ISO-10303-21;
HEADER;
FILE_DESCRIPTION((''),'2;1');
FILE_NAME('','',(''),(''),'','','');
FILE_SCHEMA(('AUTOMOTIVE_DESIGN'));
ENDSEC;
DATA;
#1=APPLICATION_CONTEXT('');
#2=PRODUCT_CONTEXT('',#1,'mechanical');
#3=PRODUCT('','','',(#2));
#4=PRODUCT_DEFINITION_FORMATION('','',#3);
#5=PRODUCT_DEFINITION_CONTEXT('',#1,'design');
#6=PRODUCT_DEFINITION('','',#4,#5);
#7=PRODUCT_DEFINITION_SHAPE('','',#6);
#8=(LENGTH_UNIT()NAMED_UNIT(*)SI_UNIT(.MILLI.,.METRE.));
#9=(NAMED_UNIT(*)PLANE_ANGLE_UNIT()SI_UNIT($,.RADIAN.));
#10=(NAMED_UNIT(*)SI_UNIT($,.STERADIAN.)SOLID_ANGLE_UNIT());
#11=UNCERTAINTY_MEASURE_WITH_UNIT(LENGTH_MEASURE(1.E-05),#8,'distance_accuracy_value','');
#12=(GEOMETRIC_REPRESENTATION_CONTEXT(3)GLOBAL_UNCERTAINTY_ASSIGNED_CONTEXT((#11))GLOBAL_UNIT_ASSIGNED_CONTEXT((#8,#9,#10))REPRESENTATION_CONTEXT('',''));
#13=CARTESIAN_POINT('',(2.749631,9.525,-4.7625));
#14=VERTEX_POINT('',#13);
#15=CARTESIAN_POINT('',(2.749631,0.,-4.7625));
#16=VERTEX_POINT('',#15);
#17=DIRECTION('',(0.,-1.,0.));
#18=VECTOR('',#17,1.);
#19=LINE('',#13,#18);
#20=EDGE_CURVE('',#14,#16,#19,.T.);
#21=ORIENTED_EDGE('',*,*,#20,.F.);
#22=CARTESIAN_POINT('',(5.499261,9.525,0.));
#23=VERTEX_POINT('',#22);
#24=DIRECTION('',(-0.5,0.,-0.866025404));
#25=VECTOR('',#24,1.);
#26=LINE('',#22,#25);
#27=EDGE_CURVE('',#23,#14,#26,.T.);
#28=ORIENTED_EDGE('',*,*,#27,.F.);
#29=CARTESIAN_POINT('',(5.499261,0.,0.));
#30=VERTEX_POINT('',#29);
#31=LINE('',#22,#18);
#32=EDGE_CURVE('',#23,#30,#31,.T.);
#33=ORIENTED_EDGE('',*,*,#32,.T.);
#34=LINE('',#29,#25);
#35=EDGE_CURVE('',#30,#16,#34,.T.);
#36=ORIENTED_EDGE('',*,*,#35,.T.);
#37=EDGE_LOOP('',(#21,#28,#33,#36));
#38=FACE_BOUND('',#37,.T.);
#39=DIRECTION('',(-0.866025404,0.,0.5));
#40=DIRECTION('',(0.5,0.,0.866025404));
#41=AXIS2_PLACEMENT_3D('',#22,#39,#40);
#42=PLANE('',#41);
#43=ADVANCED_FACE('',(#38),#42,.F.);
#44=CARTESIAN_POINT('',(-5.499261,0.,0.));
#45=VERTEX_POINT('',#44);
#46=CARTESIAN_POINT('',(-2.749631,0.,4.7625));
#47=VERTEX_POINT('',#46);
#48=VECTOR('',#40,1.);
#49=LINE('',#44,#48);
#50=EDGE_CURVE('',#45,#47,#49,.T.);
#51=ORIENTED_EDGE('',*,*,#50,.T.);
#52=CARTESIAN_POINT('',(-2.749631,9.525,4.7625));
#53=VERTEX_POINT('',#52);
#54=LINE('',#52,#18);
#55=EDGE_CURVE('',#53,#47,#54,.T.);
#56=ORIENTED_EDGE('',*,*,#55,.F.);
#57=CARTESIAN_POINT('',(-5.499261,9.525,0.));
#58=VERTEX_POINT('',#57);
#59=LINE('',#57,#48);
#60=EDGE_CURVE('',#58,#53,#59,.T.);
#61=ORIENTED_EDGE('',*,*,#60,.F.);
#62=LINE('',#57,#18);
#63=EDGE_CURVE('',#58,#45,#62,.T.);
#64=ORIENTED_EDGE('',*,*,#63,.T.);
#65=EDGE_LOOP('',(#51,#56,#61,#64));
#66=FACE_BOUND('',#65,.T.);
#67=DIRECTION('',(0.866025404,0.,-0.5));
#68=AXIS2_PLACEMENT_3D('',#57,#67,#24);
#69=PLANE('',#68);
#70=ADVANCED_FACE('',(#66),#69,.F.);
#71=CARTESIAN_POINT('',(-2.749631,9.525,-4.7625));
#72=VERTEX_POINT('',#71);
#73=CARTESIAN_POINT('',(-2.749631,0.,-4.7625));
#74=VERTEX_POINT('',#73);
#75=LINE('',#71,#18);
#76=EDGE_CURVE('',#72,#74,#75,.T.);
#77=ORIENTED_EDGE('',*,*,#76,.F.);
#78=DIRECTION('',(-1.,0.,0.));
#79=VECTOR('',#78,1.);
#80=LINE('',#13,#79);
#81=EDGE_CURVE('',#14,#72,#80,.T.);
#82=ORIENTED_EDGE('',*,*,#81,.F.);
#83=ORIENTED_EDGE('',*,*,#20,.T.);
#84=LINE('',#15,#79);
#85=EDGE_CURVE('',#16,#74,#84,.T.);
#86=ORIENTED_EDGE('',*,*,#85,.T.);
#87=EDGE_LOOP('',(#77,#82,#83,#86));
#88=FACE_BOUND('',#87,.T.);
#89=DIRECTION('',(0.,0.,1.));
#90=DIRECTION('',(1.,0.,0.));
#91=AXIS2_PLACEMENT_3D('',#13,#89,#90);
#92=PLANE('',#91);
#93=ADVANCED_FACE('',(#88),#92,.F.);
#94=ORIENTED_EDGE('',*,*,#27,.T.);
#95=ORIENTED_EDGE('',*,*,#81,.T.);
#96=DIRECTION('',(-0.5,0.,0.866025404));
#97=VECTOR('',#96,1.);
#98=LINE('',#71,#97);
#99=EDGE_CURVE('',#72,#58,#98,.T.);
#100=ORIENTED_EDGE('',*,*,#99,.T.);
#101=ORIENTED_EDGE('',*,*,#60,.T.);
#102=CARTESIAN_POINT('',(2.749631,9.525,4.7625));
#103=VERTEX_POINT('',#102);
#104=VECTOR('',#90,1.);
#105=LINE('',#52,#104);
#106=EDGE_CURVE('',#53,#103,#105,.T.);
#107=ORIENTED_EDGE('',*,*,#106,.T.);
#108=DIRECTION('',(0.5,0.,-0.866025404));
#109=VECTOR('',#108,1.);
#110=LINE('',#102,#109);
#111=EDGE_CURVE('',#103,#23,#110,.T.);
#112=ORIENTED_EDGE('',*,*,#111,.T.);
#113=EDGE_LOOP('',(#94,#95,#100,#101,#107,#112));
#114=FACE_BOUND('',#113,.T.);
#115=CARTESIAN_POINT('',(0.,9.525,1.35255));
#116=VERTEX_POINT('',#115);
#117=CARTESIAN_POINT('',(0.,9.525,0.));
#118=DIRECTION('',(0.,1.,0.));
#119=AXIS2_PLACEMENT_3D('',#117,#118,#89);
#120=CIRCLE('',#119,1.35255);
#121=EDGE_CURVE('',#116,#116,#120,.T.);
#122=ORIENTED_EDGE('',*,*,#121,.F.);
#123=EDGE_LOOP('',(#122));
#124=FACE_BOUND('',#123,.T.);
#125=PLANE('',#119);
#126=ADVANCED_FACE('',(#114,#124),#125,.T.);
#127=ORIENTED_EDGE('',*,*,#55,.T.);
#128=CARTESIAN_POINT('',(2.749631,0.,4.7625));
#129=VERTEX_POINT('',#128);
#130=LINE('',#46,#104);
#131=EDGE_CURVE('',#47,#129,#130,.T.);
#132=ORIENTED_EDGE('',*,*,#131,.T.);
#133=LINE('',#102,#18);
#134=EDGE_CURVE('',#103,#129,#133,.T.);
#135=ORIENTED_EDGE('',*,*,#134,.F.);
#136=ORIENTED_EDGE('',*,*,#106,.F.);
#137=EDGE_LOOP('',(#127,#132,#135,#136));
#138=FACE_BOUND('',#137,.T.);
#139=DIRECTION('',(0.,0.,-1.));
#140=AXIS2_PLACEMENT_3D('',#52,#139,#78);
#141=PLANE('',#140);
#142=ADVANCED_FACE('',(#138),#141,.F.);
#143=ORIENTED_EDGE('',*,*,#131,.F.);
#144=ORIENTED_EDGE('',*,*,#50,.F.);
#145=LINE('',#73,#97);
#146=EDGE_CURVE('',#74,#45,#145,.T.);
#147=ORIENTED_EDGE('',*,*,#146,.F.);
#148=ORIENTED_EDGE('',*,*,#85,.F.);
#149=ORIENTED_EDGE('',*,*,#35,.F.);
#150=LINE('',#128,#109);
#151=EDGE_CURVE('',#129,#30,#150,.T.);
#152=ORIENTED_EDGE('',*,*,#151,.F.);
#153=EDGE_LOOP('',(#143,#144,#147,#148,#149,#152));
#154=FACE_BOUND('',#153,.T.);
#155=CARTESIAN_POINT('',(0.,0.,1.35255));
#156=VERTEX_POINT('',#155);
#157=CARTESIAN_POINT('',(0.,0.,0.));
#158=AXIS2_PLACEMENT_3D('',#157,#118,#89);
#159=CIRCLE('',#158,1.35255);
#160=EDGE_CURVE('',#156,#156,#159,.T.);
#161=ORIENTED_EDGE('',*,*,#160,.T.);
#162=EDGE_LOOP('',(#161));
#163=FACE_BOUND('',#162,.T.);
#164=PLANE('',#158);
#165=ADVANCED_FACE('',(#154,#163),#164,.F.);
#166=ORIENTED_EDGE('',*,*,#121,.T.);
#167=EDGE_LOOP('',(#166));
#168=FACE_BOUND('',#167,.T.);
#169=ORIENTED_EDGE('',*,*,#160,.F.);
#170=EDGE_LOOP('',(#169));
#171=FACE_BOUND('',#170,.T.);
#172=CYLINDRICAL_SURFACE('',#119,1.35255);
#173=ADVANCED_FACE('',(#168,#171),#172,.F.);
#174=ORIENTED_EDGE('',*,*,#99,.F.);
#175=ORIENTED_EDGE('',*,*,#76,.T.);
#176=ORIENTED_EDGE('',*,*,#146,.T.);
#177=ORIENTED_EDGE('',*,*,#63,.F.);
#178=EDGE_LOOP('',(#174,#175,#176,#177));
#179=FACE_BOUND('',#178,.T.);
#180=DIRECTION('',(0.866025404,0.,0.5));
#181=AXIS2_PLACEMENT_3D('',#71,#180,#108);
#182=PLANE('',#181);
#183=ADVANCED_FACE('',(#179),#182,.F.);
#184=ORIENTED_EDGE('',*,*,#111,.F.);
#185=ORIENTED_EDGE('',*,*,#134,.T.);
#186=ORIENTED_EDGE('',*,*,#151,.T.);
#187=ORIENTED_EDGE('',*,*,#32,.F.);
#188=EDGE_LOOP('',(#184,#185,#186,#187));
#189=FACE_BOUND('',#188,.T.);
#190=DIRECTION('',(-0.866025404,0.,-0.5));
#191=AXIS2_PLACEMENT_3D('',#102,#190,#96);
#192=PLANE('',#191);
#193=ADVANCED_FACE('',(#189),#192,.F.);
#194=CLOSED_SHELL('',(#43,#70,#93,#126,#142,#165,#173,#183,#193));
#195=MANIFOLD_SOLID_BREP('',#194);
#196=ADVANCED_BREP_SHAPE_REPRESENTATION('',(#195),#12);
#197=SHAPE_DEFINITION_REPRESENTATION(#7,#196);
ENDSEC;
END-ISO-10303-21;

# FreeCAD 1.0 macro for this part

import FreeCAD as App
import Part
import Sketcher
from FreeCAD import Vector
Q = App.Units.Quantity


def add_polygon(sketch, points):
    """Adds a closed chain of lines whose ends are joined by coincident constraints."""
    first, n = sketch.GeometryCount, len(points)
    for a, b in zip(points, points[1:] + points[:1]):
        sketch.addGeometry(Part.LineSegment(App.Vector(*a, 0), App.Vector(*b, 0)), False)
    for i in range(n):
        sketch.addConstraint(Sketcher.Constraint("Coincident", first + i, 2, first + (i + 1) % n, 1))

doc = App.newDocument("Part")
params = doc.addObject("Spreadsheet::Sheet", "Params")
for row, (alias, value) in enumerate([
    ("pad1_length", "0.375 in"),
    ("hole_diameter", "0.1065 in"),
], start=1):
    params.set(f"A{row}", alias)
    params.set(f"B{row}", "=" + value)
    params.setAlias(f"B{row}", alias)

body = doc.addObject("PartDesign::Body", "Body")

sketch1 = body.newObject("Sketcher::SketchObject", "Sketch")
sketch1.AttachmentSupport = (doc.getObject("XZ_Plane"), [""])
sketch1.MapMode = "FlatFace"
add_polygon(sketch1, [(5.499261, 0), (2.749631, -4.7625), (-2.749631, -4.7625), (-5.499261, 0), (-2.749631, 4.7625), (2.749631, 4.7625)])
sketch1.addConstraint(Sketcher.Constraint("Horizontal", 1))
sketch1.addConstraint(Sketcher.Constraint("Horizontal", 4))
sketch1.addConstraint(Sketcher.Constraint("Symmetric", 0, 2, 3, 2, -1, 1))
sketch1.addConstraint(Sketcher.Constraint("Symmetric", 2, 2, 5, 2, -1, 1))
sketch1.addConstraint(Sketcher.Constraint("PointOnObject", 2, 2, -1))
sketch1.addConstraint(Sketcher.Constraint("Parallel", 2, 5))
sketch1.addConstraint(Sketcher.Constraint("Vertical", 1, 2, 3, 2))
sketch1.addConstraint(Sketcher.Constraint("Angle", 0, Q("-120 deg")))
sketch1.addConstraint(Sketcher.Constraint("DistanceY", 0, 2, -1, 1, Q("0.1875 in")))
sketch1.addConstraint(Sketcher.Constraint("DistanceX", 1, 2, 1, 1, 5.499261))
pad1 = body.newObject("PartDesign::Pad", "Pad")
pad1.Profile = sketch1
pad1.setExpression("Length", "Params.pad1_length")
pad1.Reversed = True

sketch2 = body.newObject("Sketcher::SketchObject", "Sketch001")
sketch2.AttachmentSupport = (doc.getObject("XZ_Plane"), [""])
sketch2.MapMode = "FlatFace"
sketch2.AttachmentOffset = App.Placement(Vector(0, 0, -0.375 * 25.4), App.Rotation())
sketch2.addGeometry(Part.Circle(Vector(0, 0, 0), Vector(0, 0, 1), 1.35255), False)
sketch2.addConstraint(Sketcher.Constraint("Coincident", 0, 3, -1, 1))
sketch2.addConstraint(Sketcher.Constraint("Diameter", 0, Q("0.1065 in")))
doc.recompute()
hole = body.newObject("PartDesign::Hole", "Hole")
hole.Profile = sketch2
hole.ThreadType = "None"
hole.setExpression("Diameter", "Params.hole_diameter")
hole.DepthType = "ThroughAll"
hole.Reversed = True

doc.recompute()
